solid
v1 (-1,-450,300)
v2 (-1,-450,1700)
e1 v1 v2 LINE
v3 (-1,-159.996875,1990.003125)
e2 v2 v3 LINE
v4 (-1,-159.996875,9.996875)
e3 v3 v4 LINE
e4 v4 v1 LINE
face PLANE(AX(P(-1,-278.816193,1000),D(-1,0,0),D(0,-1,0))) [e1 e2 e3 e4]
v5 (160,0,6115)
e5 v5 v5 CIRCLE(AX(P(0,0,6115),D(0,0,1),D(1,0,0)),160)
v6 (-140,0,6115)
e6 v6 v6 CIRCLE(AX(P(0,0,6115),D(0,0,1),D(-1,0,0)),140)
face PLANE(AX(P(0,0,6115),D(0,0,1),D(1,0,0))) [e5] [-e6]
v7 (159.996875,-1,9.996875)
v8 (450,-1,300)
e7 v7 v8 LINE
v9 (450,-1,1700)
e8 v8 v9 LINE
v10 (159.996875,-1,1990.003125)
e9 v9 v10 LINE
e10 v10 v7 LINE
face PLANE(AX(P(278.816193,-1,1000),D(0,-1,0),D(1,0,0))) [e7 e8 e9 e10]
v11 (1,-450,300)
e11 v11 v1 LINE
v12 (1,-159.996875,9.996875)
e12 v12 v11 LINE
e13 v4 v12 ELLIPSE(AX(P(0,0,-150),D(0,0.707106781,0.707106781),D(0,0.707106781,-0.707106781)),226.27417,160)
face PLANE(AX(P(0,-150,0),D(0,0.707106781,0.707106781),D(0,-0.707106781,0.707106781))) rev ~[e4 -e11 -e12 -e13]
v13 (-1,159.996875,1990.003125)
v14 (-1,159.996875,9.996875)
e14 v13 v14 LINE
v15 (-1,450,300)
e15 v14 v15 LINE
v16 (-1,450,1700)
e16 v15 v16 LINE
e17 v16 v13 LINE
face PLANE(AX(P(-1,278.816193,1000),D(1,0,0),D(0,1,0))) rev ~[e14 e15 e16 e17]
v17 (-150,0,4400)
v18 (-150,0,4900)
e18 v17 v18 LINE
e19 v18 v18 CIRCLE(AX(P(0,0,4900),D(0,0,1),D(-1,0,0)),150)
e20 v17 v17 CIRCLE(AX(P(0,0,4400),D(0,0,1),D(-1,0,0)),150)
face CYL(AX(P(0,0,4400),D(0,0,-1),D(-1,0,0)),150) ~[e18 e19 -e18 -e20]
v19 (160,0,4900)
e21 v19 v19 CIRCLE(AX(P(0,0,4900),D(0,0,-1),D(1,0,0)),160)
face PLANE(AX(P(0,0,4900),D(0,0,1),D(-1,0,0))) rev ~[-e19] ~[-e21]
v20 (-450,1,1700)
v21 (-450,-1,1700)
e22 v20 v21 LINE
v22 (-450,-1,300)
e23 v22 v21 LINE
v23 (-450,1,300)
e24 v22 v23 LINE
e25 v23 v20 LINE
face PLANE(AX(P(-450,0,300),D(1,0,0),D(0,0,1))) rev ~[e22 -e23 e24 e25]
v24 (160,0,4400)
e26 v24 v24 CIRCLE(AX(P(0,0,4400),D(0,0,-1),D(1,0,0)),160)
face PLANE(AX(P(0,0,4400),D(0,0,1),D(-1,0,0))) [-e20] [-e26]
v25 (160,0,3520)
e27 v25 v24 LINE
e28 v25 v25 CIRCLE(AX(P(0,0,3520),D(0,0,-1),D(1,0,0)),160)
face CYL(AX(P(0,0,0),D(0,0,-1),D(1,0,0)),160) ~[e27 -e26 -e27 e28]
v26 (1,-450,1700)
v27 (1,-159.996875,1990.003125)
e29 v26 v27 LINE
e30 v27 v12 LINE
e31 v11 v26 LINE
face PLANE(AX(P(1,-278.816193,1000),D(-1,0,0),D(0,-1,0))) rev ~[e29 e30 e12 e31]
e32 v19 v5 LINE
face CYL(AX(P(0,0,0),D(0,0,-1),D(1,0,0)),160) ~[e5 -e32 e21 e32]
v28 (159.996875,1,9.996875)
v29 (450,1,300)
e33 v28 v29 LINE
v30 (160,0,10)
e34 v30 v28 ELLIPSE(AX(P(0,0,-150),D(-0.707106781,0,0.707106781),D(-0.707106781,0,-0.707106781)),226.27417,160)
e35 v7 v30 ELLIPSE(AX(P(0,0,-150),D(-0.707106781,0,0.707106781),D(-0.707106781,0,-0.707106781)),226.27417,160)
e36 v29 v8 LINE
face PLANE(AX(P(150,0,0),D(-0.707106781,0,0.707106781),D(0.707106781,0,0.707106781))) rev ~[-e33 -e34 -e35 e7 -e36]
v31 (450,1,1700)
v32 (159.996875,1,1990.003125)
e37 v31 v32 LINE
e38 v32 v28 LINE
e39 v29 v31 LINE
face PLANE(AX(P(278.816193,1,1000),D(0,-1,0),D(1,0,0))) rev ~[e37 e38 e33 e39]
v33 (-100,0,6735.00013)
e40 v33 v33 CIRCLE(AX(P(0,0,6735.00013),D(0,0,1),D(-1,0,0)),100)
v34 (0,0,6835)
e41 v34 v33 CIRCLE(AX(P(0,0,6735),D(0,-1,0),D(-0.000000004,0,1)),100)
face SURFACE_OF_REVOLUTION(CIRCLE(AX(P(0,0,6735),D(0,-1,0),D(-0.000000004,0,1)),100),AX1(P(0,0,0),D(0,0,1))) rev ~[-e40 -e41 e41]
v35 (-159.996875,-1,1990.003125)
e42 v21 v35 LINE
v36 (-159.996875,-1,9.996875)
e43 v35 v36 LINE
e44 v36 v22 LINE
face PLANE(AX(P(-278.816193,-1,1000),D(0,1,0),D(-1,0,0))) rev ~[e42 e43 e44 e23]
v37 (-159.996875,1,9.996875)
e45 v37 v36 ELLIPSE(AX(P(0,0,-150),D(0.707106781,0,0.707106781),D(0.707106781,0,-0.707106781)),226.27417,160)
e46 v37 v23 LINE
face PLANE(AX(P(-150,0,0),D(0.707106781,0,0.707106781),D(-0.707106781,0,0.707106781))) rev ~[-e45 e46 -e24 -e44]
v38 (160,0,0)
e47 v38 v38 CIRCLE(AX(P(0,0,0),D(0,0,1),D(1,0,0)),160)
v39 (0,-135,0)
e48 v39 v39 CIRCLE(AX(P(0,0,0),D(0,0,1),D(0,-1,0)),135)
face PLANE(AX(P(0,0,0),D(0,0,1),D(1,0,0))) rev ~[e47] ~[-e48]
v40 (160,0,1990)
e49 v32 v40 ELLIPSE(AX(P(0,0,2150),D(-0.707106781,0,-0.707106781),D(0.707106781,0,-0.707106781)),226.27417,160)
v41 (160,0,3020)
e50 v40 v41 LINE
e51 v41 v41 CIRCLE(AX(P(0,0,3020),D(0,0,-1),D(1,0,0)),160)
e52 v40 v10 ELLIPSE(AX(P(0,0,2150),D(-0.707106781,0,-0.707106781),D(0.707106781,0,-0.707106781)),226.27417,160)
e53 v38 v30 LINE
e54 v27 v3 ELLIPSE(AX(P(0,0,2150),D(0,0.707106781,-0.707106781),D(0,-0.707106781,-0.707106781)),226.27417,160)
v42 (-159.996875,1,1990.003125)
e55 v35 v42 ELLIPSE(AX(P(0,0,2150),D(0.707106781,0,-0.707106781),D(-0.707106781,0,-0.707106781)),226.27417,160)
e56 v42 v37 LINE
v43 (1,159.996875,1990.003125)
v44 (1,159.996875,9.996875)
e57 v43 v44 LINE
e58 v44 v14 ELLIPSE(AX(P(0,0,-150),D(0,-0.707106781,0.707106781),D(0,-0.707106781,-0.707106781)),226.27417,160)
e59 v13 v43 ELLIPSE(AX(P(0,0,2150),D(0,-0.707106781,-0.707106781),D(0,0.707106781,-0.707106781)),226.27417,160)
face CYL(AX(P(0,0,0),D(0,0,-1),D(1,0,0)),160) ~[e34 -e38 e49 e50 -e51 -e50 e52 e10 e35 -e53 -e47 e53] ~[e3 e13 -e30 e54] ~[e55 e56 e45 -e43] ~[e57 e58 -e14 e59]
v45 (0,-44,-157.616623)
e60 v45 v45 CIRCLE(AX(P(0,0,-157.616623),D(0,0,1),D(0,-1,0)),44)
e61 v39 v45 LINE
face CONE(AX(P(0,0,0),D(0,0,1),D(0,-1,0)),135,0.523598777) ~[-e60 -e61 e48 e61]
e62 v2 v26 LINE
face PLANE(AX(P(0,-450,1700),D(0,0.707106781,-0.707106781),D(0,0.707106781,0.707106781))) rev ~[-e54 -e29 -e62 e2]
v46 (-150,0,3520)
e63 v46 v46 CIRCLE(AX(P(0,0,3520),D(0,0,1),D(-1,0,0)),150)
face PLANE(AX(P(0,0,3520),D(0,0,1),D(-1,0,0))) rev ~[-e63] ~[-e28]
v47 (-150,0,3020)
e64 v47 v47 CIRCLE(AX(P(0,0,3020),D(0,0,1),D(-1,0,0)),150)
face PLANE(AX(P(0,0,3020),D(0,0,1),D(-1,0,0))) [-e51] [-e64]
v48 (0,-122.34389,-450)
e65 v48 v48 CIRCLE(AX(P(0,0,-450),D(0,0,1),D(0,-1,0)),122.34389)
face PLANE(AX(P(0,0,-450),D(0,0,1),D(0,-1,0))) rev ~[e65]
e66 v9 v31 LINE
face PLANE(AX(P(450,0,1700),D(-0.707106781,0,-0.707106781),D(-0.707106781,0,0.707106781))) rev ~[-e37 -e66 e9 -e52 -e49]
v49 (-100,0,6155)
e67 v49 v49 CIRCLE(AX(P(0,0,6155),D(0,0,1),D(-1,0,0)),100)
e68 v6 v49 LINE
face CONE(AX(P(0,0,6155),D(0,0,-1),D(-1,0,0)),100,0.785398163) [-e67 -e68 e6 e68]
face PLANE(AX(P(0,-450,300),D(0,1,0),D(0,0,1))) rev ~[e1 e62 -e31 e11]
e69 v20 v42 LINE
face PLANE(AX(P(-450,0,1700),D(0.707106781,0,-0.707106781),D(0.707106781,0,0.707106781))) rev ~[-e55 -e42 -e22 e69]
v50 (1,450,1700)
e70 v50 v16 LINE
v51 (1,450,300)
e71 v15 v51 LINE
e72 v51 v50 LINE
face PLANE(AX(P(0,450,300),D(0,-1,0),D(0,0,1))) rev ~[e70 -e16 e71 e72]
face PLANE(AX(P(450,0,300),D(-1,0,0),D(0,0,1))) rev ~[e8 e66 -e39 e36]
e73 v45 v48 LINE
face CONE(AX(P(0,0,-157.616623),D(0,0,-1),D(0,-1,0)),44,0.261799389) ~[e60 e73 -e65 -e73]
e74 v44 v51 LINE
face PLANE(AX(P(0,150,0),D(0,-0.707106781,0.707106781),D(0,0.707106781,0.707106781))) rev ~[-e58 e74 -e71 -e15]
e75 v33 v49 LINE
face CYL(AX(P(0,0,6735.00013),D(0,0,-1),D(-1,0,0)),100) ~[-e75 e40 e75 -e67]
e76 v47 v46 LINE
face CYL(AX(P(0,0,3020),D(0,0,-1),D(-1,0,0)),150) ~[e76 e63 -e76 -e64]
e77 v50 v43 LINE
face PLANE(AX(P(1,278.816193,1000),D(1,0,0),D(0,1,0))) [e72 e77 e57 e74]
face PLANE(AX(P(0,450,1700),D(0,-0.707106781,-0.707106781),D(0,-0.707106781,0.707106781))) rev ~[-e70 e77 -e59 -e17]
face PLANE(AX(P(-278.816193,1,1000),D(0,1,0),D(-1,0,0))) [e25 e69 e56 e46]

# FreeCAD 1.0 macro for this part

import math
import FreeCAD as App
import Part
import Sketcher

V = App.Vector
Q = App.Units.Quantity


def edges_at(feature, points):
    """Names of the edges that pass closest to the given points."""
    edges = feature.Shape.Edges
    near = lambda p: min(range(len(edges)), key=lambda i: edges[i].distToShape(Part.Vertex(*p))[0])
    return sorted({f"Edge{near(p) + 1}" for p in points})


def add_polygon(sketch, points):
    """Adds a closed chain of lines whose ends are joined by coincident constraints."""
    first, n = sketch.GeometryCount, len(points)
    for a, b in zip(points, points[1:] + points[:1]):
        sketch.addGeometry(Part.LineSegment(App.Vector(*a, 0), App.Vector(*b, 0)), False)
    for i in range(n):
        sketch.addConstraint(Sketcher.Constraint("Coincident", first + i, 2, first + (i + 1) % n, 1))

doc = App.newDocument("Part")
params = doc.addObject("Spreadsheet::Sheet", "Params")
for row, (alias, value) in enumerate([
    ("sketch1_diameter", "320 mm"),
    ("pad1_length", "6115 mm"),
    ("sketch2_radius", "100 mm"),
    ("sketch2_height", "720 mm"),
    ("revolution_angle", "360 deg"),
    ("sketch3_width", "135 mm"),
    ("sketch3_height", "450 mm"),
    ("sketch3_length", "182 mm"),
    ("revolution2_angle", "360 deg"),
    ("chamfer_size", "40 mm"),
    ("sketch4_height", "2000 mm"),
    ("sketch4_height2", "1400 mm"),
    ("pad2_length", "2 mm"),
    ("sketch5_diameter", "320 mm"),
    ("sketch5_diameter2", "300 mm"),
    ("pocket1_length", "500 mm"),
    ("sketch6_diameter", "320 mm"),
    ("sketch6_diameter2", "300 mm"),
    ("pocket2_length", "500 mm"),
], start=1):
    params.set(f"A{row}", alias)
    params.set(f"B{row}", "=" + value)
    params.setAlias(f"B{row}", alias)

body = doc.addObject("PartDesign::Body", "Body")

sketch1 = body.newObject("Sketcher::SketchObject", "Sketch")
sketch1.AttachmentSupport = (doc.getObject("XY_Plane"), [""])
sketch1.MapMode = "FlatFace"
sketch1.addGeometry(Part.Circle(V(0, 0, 0), V(0, 0, 1), 160), False)
sketch1.addConstraint([
    Sketcher.Constraint("Coincident", 0, 3, -1, 1),
    Sketcher.Constraint("Diameter", 0, Q("320 mm")),
])
sketch1.setExpression("Constraints[1]", "Params.sketch1_diameter")
pad1 = body.newObject("PartDesign::Pad", "Pad")
pad1.Profile = sketch1
pad1.setExpression("Length", "Params.pad1_length")

sketch2 = body.newObject("Sketcher::SketchObject", "Sketch001")
sketch2.AttachmentSupport = (doc.getObject("XZ_Plane"), [""])
sketch2.MapMode = "FlatFace"
sketch2.addGeometry([
    Part.ArcOfCircle(Part.Circle(V(0, 6735, 0), V(0, 0, 1), 100), math.radians(90), math.radians(179.999925)),
    Part.LineSegment(V(-100, 6735.00013, 0), V(-100, 6115, 0)),
    Part.LineSegment(V(-100, 6115, 0), V(0, 6115, 0)),
    Part.LineSegment(V(0, 6115, 0), V(0, 6835, 0)),
], False)
sketch2.addConstraint([
    Sketcher.Constraint("Tangent", 0, 2, 1, 1),
    Sketcher.Constraint("Coincident", 1, 2, 2, 1),
    Sketcher.Constraint("Coincident", 2, 2, 3, 1),
    Sketcher.Constraint("Coincident", 3, 2, 0, 1),
    Sketcher.Constraint("Vertical", 1),
    Sketcher.Constraint("Horizontal", 2),
    Sketcher.Constraint("Vertical", 3),
    Sketcher.Constraint("PointOnObject", 0, 3, -2),
    Sketcher.Constraint("PointOnObject", 2, 2, -2),
    Sketcher.Constraint("Radius", 0, Q("100 mm")),
    Sketcher.Constraint("DistanceY", 3, 1, 3, 2, Q("720 mm")),
    Sketcher.Constraint("DistanceY", -1, 1, 0, 3, Q("6735 mm")),
])
sketch2.setExpression("Constraints[9]", "Params.sketch2_radius")
sketch2.setExpression("Constraints[10]", "Params.sketch2_height")
revolution = body.newObject("PartDesign::Revolution", "Revolution")
revolution.Profile = sketch2
revolution.ReferenceAxis = (sketch2, ["V_Axis"])
revolution.setExpression("Angle", "Params.revolution_angle")

sketch3 = body.newObject("Sketcher::SketchObject", "Sketch002")
sketch3.AttachmentSupport = (doc.getObject("YZ_Plane"), [""])
sketch3.MapMode = "FlatFace"
add_polygon(sketch3, [(-135, 0), (-44, -158), (-122, -450), (0, -450), (0, 0)])
sketch3.addConstraint([
    Sketcher.Constraint("Horizontal", 2),
    Sketcher.Constraint("Vertical", 3),
    Sketcher.Constraint("Horizontal", 4),
    Sketcher.Constraint("Coincident", 3, 2, -1, 1),
    Sketcher.Constraint("DistanceX", 4, 2, 4, 1, Q("135 mm")),
    Sketcher.Constraint("DistanceY", 3, 1, 3, 2, Q("450 mm")),
    Sketcher.Constraint("Angle", 0, Q("-60 deg")),
    Sketcher.Constraint("Angle", 1, Q("-105 deg")),
    Sketcher.Constraint("Distance", 0, Q("182 mm")),
])
sketch3.setExpression("Constraints[9]", "Params.sketch3_width")
sketch3.setExpression("Constraints[10]", "Params.sketch3_height")
sketch3.setExpression("Constraints[13]", "Params.sketch3_length")
revolution2 = body.newObject("PartDesign::Revolution", "Revolution001")
revolution2.Profile = sketch3
revolution2.ReferenceAxis = (sketch3, ["V_Axis"])
revolution2.setExpression("Angle", "Params.revolution2_angle")
doc.recompute()

chamfer = body.newObject("PartDesign::Chamfer", "Chamfer")
chamfer.Base = (revolution2, edges_at(revolution2, [(100, 0, 6115)]))
chamfer.setExpression("Size", "Params.chamfer_size")

sketch4 = body.newObject("Sketcher::SketchObject", "Sketch003")
sketch4.AttachmentSupport = (doc.getObject("YZ_Plane"), [""])
sketch4.MapMode = "FlatFace"
add_polygon(sketch4, [(-150, 0), (-150, 2000), (-450, 1700), (-450, 300)])
sketch4.addConstraint([
    Sketcher.Constraint("Vertical", 0),
    Sketcher.Constraint("Vertical", 2),
    Sketcher.Constraint("PointOnObject", 3, 2, -1),
    Sketcher.Constraint("Perpendicular", 1, 3),
    Sketcher.Constraint("Equal", 1, 3),
    Sketcher.Constraint("DistanceY", 0, 1, 0, 2, Q("2000 mm")),
    Sketcher.Constraint("DistanceY", 2, 2, 2, 1, Q("1400 mm")),
    Sketcher.Constraint("DistanceX", 0, 2, -1, 1, Q("150 mm")),
])
sketch4.setExpression("Constraints[9]", "Params.sketch4_height")
sketch4.setExpression("Constraints[10]", "Params.sketch4_height2")
pad2 = body.newObject("PartDesign::Pad", "Pad001")
pad2.Profile = sketch4
pad2.setExpression("Length", "Params.pad2_length")
pad2.Midplane = True
doc.recompute()

polarpattern = body.newObject("PartDesign::PolarPattern", "PolarPattern")
polarpattern.Originals = [pad2]
polarpattern.Axis = (doc.getObject("Z_Axis"), [""])
polarpattern.Angle = 360
polarpattern.Occurrences = 4
body.Tip = polarpattern

sketch5 = body.newObject("Sketcher::SketchObject", "Sketch004")
sketch5.AttachmentSupport = (doc.getObject("XY_Plane"), [""])
sketch5.MapMode = "FlatFace"
sketch5.AttachmentOffset = App.Placement(V(0, 0, 3020), App.Rotation())
sketch5.addGeometry([
    Part.Circle(V(0, 0, 0), V(0, 0, 1), 160),
    Part.Circle(V(0, 0, 0), V(0, 0, 1), 150),
], False)
sketch5.addConstraint([
    Sketcher.Constraint("Coincident", 0, 3, -1, 1),
    Sketcher.Constraint("Coincident", 1, 3, -1, 1),
    Sketcher.Constraint("Diameter", 0, Q("320 mm")),
    Sketcher.Constraint("Diameter", 1, Q("300 mm")),
])
sketch5.setExpression("Constraints[2]", "Params.sketch5_diameter")
sketch5.setExpression("Constraints[3]", "Params.sketch5_diameter2")
pocket1 = body.newObject("PartDesign::Pocket", "Pocket")
pocket1.Profile = sketch5
pocket1.setExpression("Length", "Params.pocket1_length")
pocket1.Reversed = True

sketch6 = body.newObject("Sketcher::SketchObject", "Sketch005")
sketch6.AttachmentSupport = (doc.getObject("XY_Plane"), [""])
sketch6.MapMode = "FlatFace"
sketch6.AttachmentOffset = App.Placement(V(0, 0, 4400), App.Rotation())
sketch6.addGeometry([
    Part.Circle(V(0, 0, 0), V(0, 0, 1), 160),
    Part.Circle(V(0, 0, 0), V(0, 0, 1), 150),
], False)
sketch6.addConstraint([
    Sketcher.Constraint("Coincident", 0, 3, -1, 1),
    Sketcher.Constraint("Coincident", 1, 3, -1, 1),
    Sketcher.Constraint("Diameter", 0, Q("320 mm")),
    Sketcher.Constraint("Diameter", 1, Q("300 mm")),
])
sketch6.setExpression("Constraints[2]", "Params.sketch6_diameter")
sketch6.setExpression("Constraints[3]", "Params.sketch6_diameter2")
pocket2 = body.newObject("PartDesign::Pocket", "Pocket001")
pocket2.Profile = sketch6
pocket2.setExpression("Length", "Params.pocket2_length")
pocket2.Reversed = True

doc.recompute()
